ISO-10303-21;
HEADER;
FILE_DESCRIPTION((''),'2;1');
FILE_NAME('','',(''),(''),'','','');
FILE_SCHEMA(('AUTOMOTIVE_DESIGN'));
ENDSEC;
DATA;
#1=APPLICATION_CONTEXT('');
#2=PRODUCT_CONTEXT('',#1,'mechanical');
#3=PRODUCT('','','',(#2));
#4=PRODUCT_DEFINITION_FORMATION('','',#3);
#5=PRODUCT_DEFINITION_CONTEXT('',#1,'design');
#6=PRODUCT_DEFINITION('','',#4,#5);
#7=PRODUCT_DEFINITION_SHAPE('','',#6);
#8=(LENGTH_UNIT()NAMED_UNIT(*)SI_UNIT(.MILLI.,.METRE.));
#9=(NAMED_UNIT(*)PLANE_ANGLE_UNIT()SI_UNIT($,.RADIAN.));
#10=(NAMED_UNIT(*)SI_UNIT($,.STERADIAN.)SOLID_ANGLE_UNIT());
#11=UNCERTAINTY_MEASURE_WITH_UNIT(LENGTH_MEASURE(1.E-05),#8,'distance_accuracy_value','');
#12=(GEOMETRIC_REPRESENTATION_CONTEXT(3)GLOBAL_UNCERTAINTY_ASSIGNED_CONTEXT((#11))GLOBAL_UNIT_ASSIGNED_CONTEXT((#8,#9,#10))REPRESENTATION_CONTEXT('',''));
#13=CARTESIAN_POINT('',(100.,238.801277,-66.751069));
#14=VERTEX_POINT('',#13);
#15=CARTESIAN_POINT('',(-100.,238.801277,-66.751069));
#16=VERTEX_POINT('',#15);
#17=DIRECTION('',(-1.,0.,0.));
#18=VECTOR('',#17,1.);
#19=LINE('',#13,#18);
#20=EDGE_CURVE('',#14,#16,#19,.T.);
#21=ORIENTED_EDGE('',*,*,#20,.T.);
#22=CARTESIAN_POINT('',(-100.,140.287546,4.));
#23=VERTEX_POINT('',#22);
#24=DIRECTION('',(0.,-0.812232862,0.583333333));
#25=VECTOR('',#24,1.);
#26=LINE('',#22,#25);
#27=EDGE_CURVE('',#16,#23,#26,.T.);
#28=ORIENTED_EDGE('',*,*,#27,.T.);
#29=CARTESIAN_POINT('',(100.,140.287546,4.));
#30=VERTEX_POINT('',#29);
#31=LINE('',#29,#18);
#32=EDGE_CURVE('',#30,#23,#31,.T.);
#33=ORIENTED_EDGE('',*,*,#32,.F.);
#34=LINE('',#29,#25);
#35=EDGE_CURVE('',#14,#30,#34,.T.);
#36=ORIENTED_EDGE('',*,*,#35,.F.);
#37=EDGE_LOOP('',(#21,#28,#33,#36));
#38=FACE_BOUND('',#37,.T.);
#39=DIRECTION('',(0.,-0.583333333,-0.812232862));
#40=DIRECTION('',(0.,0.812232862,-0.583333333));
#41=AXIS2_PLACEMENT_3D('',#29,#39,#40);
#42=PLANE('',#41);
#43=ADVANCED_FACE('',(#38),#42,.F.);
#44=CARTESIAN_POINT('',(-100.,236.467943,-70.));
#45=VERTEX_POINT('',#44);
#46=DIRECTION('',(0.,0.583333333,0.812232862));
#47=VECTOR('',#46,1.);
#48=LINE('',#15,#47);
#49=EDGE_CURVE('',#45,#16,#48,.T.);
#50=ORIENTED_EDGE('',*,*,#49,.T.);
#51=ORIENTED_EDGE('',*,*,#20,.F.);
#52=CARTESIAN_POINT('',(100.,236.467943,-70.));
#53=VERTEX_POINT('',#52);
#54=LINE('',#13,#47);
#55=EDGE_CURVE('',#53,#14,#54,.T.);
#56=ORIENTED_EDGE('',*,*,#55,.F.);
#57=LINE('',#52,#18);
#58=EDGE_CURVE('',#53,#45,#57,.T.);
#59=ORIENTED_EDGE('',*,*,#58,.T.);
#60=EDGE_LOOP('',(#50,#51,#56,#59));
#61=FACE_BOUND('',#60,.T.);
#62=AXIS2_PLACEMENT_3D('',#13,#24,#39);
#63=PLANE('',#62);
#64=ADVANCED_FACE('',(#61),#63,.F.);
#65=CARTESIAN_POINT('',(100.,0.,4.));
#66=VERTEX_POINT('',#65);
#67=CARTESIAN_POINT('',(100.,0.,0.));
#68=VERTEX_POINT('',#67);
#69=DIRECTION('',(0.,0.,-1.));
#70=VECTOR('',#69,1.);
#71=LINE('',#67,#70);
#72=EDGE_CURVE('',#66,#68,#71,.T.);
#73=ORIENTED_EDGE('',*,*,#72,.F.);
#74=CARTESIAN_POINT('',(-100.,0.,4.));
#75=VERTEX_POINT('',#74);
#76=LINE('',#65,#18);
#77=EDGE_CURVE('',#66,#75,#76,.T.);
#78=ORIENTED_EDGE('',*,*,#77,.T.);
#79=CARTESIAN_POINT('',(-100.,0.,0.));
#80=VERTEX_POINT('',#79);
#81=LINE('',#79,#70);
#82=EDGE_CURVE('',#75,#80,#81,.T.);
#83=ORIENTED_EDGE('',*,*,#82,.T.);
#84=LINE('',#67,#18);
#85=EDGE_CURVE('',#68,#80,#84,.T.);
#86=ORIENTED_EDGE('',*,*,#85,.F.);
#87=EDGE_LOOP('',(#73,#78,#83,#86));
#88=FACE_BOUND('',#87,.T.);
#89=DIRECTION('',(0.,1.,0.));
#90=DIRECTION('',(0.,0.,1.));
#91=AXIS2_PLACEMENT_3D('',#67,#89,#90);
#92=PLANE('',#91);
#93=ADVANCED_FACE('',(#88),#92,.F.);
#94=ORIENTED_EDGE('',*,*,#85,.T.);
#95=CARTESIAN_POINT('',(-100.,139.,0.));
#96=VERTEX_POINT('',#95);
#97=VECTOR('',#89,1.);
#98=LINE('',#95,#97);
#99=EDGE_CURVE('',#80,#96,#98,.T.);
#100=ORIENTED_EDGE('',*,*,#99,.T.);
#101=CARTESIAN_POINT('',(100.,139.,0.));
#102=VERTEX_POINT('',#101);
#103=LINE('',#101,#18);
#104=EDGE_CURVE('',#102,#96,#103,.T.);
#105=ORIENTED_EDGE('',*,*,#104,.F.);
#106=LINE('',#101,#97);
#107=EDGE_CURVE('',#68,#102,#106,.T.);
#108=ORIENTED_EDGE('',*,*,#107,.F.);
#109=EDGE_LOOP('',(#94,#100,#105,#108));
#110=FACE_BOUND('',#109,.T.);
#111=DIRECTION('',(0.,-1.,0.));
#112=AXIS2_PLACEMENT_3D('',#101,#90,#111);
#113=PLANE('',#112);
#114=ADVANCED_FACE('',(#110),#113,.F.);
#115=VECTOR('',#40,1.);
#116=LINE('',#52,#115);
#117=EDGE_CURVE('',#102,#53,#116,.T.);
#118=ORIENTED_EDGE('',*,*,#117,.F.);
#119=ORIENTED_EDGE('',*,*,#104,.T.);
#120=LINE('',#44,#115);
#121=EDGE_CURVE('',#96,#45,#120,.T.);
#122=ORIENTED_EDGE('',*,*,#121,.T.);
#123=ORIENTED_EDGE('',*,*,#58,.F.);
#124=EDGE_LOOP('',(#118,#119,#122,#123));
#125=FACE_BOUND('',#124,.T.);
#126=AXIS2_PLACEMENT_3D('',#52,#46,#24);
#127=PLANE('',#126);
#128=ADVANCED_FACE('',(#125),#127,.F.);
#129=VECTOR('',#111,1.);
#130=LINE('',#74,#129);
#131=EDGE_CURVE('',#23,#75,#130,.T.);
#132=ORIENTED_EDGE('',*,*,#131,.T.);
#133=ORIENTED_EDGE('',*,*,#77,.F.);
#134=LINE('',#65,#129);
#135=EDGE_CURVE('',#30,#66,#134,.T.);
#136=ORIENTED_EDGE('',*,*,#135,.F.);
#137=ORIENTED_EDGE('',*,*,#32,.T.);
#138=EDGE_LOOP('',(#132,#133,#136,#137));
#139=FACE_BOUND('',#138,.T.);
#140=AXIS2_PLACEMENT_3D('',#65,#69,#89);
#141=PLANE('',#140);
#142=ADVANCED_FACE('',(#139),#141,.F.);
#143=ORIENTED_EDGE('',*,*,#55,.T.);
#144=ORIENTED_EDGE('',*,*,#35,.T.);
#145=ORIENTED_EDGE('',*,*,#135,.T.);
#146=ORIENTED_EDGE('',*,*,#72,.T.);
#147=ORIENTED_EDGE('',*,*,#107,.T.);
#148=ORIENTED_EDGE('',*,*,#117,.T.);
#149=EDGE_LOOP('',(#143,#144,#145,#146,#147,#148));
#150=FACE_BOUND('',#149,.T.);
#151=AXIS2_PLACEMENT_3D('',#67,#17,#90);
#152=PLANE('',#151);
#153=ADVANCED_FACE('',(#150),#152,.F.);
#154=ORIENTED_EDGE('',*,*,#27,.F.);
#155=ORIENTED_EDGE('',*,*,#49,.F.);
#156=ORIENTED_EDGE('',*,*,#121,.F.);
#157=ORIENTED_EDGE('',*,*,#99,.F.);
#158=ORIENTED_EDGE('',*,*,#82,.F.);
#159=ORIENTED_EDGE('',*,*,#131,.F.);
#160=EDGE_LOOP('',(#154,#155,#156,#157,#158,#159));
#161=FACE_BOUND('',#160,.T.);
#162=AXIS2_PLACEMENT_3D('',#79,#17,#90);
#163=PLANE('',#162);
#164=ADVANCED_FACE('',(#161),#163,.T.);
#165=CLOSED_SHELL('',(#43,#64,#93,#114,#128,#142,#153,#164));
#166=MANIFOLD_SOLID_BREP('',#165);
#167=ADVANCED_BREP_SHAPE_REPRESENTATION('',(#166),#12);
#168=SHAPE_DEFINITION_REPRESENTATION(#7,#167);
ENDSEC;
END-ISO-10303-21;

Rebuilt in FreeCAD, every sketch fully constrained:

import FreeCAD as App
import Part
import Sketcher

V = App.Vector


def add_polygon(sketch, points):
    """Adds a closed chain of lines whose ends are joined by coincident constraints."""
    first, n = sketch.GeometryCount, len(points)
    for a, b in zip(points, points[1:] + points[:1]):
        sketch.addGeometry(Part.LineSegment(App.Vector(*a, 0), App.Vector(*b, 0)), False)
    for i in range(n):
        sketch.addConstraint(Sketcher.Constraint("Coincident", first + i, 2, first + (i + 1) % n, 1))

doc = App.newDocument("Part")
body = doc.addObject("PartDesign::Body", "Body")

# Sketch on YZ plane
sketch1 = body.newObject("Sketcher::SketchObject", "Sketch")
sketch1.AttachmentSupport = (doc.getObject("YZ_Plane"), [""])
sketch1.MapMode = "FlatFace"
add_polygon(sketch1, [(140.3, 4), (0, 4), (0, 0), (139, 0), (236.5, -70), (238.8, -66.8)])  # lines 0-5
sketch1.addConstraint([
    Sketcher.Constraint("Horizontal", 0),
    Sketcher.Constraint("Vertical", 1),
    Sketcher.Constraint("Horizontal", 2),
    Sketcher.Constraint("Coincident", 1, 2, -1, 1),
    Sketcher.Constraint("Perpendicular", 3, 4),
    Sketcher.Constraint("Perpendicular", 4, 5),
    Sketcher.Constraint("DistanceX", 2, 1, 2, 2, 139.0),
    Sketcher.Constraint("DistanceY", 1, 2, 1, 1, 4.0),
    Sketcher.Constraint("Distance", 3, 120.0),
    Sketcher.Constraint("Distance", 4, 4.0),
    Sketcher.Constraint("DistanceY", 3, 2, -1, 1, 70.0),
])
pad1 = body.newObject("PartDesign::Pad", "Pad")
pad1.Profile = sketch1
pad1.Length = 200
pad1.Midplane = True

doc.recompute()
